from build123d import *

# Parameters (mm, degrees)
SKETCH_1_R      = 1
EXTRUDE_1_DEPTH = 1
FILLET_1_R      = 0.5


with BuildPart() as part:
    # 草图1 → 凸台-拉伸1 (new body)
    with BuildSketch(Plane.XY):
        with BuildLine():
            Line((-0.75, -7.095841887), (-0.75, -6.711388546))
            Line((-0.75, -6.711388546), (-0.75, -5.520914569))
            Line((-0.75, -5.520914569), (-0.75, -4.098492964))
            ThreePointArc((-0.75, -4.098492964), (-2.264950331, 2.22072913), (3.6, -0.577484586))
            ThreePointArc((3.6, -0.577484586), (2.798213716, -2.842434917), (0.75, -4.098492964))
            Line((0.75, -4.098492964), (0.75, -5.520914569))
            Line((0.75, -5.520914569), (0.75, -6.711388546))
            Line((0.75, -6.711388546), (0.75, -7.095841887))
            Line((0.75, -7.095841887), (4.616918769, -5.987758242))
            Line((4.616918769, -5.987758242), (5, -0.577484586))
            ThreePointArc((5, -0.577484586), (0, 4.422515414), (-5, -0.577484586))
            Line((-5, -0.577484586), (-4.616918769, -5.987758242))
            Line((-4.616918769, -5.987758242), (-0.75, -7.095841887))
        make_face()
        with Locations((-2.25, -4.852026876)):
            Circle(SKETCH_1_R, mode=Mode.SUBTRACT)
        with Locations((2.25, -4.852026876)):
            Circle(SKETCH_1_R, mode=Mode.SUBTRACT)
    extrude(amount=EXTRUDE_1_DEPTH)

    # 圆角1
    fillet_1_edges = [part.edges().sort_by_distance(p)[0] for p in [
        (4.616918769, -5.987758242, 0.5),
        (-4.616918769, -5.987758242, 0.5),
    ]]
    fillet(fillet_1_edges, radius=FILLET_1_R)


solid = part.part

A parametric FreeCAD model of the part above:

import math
import FreeCAD as App
import Part
import Sketcher

V = App.Vector
Q = App.Units.Quantity


def edges_at(feature, points):
    """Names of the edges that pass closest to the given points."""
    edges = feature.Shape.Edges
    near = lambda p: min(range(len(edges)), key=lambda i: edges[i].distToShape(Part.Vertex(*p))[0])
    return sorted({f"Edge{near(p) + 1}" for p in points})

doc = App.newDocument("Part")
params = doc.addObject("Spreadsheet::Sheet", "Params")
for row, (alias, value) in enumerate([
    ("sketch1_diameter", "2 mm"),
    ("sketch1_radius", "5 mm"),
    ("sketch1_radius2", "3.6 mm"),
    ("pad1_length", "1 mm"),
    ("fillet_radius", "0.5 mm"),
], start=1):
    params.set(f"A{row}", alias)
    params.set(f"B{row}", "=" + value)
    params.setAlias(f"B{row}", alias)

body = doc.addObject("PartDesign::Body", "Body")

sketch1 = body.newObject("Sketcher::SketchObject", "Sketch")
sketch1.AttachmentSupport = (doc.getObject("XY_Plane"), [""])
sketch1.MapMode = "FlatFace"
sketch1.addGeometry([
    Part.LineSegment(V(-0.8, -7.1, 0), V(-0.8, -4.1, 0)),
    Part.ArcOfCircle(Part.Circle(V(0, -0.6, 0), V(0, 0, 1), 3.6), math.radians(0), math.radians(258)),
    Part.ArcOfCircle(Part.Circle(V(0, -0.6, 0), V(0, 0, 1), 3.6), math.radians(-78), math.radians(0)),
    Part.LineSegment(V(0.8, -4.1, 0), V(0.8, -7.1, 0)),
    Part.LineSegment(V(0.8, -7.1, 0), V(4.6, -6, 0)),
    Part.LineSegment(V(4.6, -6, 0), V(5, -0.6, 0)),
    Part.ArcOfCircle(Part.Circle(V(0, -0.6, 0), V(0, 0, 1), 5), math.radians(0), math.radians(180)),
    Part.LineSegment(V(-5, -0.6, 0), V(-4.6, -6, 0)),
    Part.LineSegment(V(-4.6, -6, 0), V(-0.8, -7.1, 0)),
    Part.Circle(V(-2.2, -4.9, 0), V(0, 0, 1), 1),
    Part.Circle(V(2.2, -4.9, 0), V(0, 0, 1), 1),
], False)
sketch1.addConstraint([
    Sketcher.Constraint("Coincident", 0, 2, 1, 2),
    Sketcher.Constraint("Tangent", 1, 1, 2, 2),
    Sketcher.Constraint("Coincident", 2, 1, 3, 1),
    Sketcher.Constraint("Coincident", 3, 2, 4, 1),
    Sketcher.Constraint("Coincident", 4, 2, 5, 1),
    Sketcher.Constraint("Coincident", 5, 2, 6, 1),
    Sketcher.Constraint("Coincident", 6, 2, 7, 1),
    Sketcher.Constraint("Coincident", 7, 2, 8, 1),
    Sketcher.Constraint("Coincident", 8, 2, 0, 1),
    Sketcher.Constraint("Vertical", 0),
    Sketcher.Constraint("Vertical", 3),
    Sketcher.Constraint("Coincident", 6, 3, 1, 3),
    Sketcher.Constraint("Equal", 1, 2),
    Sketcher.Constraint("Equal", 9, 10),
    Sketcher.Constraint("Symmetric", 9, 3, 10, 3, -2),
    Sketcher.Constraint("Symmetric", 0, 2, 2, 1, -2),
    Sketcher.Constraint("Symmetric", 4, 2, 7, 2, -2),
    Sketcher.Constraint("Horizontal", 6, 3, 1, 1),
    Sketcher.Constraint("Horizontal", 1, 1, 5, 2),
    Sketcher.Constraint("Horizontal", 5, 2, 6, 2),
    Sketcher.Constraint("Horizontal", 3, 2, 8, 2),
    Sketcher.Constraint("Diameter", 9, Q("2 mm")),
    Sketcher.Constraint("Radius", 6, Q("5 mm")),
    Sketcher.Constraint("Radius", 1, Q("3.6 mm")),
    Sketcher.Constraint("DistanceX", 0, 2, 10, 3, Q("3 mm")),
    Sketcher.Constraint("DistanceX", 9, 3, 10, 3, Q("4.5 mm")),
    Sketcher.Constraint("DistanceY", 0, 1, 0, 2, Q("2.997349 mm")),
    Sketcher.Constraint("Distance", 4, Q("4.02255 mm")),
    Sketcher.Constraint("Distance", 5, Q("5.423819 mm")),
    Sketcher.Constraint("DistanceY", 3, 2, -1, 1, Q("7.095842 mm")),
    Sketcher.Constraint("DistanceY", 4, 2, 10, 3, Q("1.135731 mm")),
])
sketch1.setExpression("Constraints[21]", "Params.sketch1_diameter")
sketch1.setExpression("Constraints[22]", "Params.sketch1_radius")
sketch1.setExpression("Constraints[23]", "Params.sketch1_radius2")
pad1 = body.newObject("PartDesign::Pad", "Pad")
pad1.Profile = sketch1
pad1.setExpression("Length", "Params.pad1_length")
doc.recompute()

fillet = body.newObject("PartDesign::Fillet", "Fillet")
fillet.Base = (pad1, edges_at(pad1, [(4.617, -5.988, 0.5), (-4.617, -5.988, 0.5)]))
fillet.setExpression("Radius", "Params.fillet_radius")

doc.recompute()
